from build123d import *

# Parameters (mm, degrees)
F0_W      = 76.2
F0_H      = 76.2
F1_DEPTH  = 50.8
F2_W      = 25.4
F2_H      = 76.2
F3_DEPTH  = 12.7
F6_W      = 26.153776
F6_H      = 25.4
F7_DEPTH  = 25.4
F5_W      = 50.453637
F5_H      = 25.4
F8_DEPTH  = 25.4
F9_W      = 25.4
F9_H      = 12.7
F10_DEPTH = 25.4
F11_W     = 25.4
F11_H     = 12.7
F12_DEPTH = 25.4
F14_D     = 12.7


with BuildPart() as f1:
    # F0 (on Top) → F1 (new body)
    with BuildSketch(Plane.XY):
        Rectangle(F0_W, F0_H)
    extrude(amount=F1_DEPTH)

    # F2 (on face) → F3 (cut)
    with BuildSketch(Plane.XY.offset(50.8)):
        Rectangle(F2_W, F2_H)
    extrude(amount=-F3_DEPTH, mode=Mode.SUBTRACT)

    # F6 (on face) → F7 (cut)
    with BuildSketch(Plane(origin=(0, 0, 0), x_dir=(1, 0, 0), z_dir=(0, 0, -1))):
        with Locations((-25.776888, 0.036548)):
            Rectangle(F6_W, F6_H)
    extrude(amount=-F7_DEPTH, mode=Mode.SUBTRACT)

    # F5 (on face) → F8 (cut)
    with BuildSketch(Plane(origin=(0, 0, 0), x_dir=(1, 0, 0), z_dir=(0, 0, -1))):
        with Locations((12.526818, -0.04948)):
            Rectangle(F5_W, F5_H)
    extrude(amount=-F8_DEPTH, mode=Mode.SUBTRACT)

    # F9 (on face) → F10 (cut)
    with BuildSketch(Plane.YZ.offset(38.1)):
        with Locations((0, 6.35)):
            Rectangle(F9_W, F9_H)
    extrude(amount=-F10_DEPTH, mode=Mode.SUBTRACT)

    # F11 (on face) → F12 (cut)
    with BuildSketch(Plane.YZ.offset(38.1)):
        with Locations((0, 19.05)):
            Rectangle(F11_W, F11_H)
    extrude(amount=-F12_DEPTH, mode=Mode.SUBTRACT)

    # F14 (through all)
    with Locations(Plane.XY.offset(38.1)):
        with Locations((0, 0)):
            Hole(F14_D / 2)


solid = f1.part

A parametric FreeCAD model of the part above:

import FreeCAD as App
import Part
import Sketcher
Q = App.Units.Quantity

doc = App.newDocument("Part")
params = doc.addObject("Spreadsheet::Sheet", "Params")
for row, (alias, value) in enumerate([
    ("sketch1_width", "3 in"),
    ("pad1_length", "2 in"),
    ("sketch2_width", "1 in"),
    ("sketch2_height", "3 in"),
    ("pocket1_length", "0.5 in"),
    ("sketch3_height", "1 in"),
    ("pocket2_length", "1 in"),
    ("sketch4_height", "1 in"),
    ("pocket3_length", "1 in"),
    ("sketch5_width", "1 in"),
    ("sketch5_height", "0.5 in"),
    ("pocket4_length", "1 in"),
    ("sketch6_width", "1 in"),
    ("sketch6_height", "0.5 in"),
    ("pocket5_length", "1 in"),
    ("sketch7_diameter", "0.5 in"),
    ("hole_diameter", "0.5 in"),
], start=1):
    params.set(f"A{row}", alias)
    params.set(f"B{row}", "=" + value)
    params.setAlias(f"B{row}", alias)

body = doc.addObject("PartDesign::Body", "Body")

sketch1 = body.newObject("Sketcher::SketchObject", "Sketch")
sketch1.AttachmentSupport = (doc.getObject("XY_Plane"), [""])
sketch1.MapMode = "FlatFace"
sketch1.addGeometry([
    Part.LineSegment(App.Vector(-38, 38, 0), App.Vector(-38, -38, 0)),
    Part.LineSegment(App.Vector(-38, -38, 0), App.Vector(38, -38, 0)),
    Part.LineSegment(App.Vector(38, -38, 0), App.Vector(38, 38, 0)),
    Part.LineSegment(App.Vector(38, 38, 0), App.Vector(-38, 38, 0)),
], False)
sketch1.addConstraint([
    Sketcher.Constraint("Coincident", 0, 2, 1, 1),
    Sketcher.Constraint("Coincident", 1, 2, 2, 1),
    Sketcher.Constraint("Coincident", 2, 2, 3, 1),
    Sketcher.Constraint("Coincident", 3, 2, 0, 1),
    Sketcher.Constraint("Vertical", 0),
    Sketcher.Constraint("Horizontal", 1),
    Sketcher.Constraint("Vertical", 2),
    Sketcher.Constraint("Horizontal", 3),
    Sketcher.Constraint("Symmetric", 0, 2, 2, 2, -1, 1),
    Sketcher.Constraint("Equal", 3, 0),
    Sketcher.Constraint("DistanceX", 1, 1, 1, 2, Q("3 in")),
])
sketch1.setExpression("Constraints[10]", "Params.sketch1_width")
pad1 = body.newObject("PartDesign::Pad", "Pad")
pad1.Profile = sketch1
pad1.setExpression("Length", "Params.pad1_length")

sketch2 = body.newObject("Sketcher::SketchObject", "Sketch001")
sketch2.AttachmentSupport = (doc.getObject("XY_Plane"), [""])
sketch2.MapMode = "FlatFace"
sketch2.AttachmentOffset = App.Placement(App.Vector(0, 0, 2 * 25.4), App.Rotation())
sketch2.addGeometry([
    Part.LineSegment(App.Vector(-13, 38, 0), App.Vector(-13, -38, 0)),
    Part.LineSegment(App.Vector(-13, -38, 0), App.Vector(13, -38, 0)),
    Part.LineSegment(App.Vector(13, -38, 0), App.Vector(13, 38, 0)),
    Part.LineSegment(App.Vector(13, 38, 0), App.Vector(-13, 38, 0)),
], False)
sketch2.addConstraint([
    Sketcher.Constraint("Coincident", 0, 2, 1, 1),
    Sketcher.Constraint("Coincident", 1, 2, 2, 1),
    Sketcher.Constraint("Coincident", 2, 2, 3, 1),
    Sketcher.Constraint("Coincident", 3, 2, 0, 1),
    Sketcher.Constraint("Vertical", 0),
    Sketcher.Constraint("Horizontal", 1),
    Sketcher.Constraint("Vertical", 2),
    Sketcher.Constraint("Horizontal", 3),
    Sketcher.Constraint("Symmetric", 0, 2, 2, 2, -1, 1),
    Sketcher.Constraint("DistanceX", 1, 1, 1, 2, Q("1 in")),
    Sketcher.Constraint("DistanceY", 0, 2, 0, 1, Q("3 in")),
])
sketch2.setExpression("Constraints[9]", "Params.sketch2_width")
sketch2.setExpression("Constraints[10]", "Params.sketch2_height")
pocket1 = body.newObject("PartDesign::Pocket", "Pocket")
pocket1.Profile = sketch2
pocket1.setExpression("Length", "Params.pocket1_length")

sketch3 = body.newObject("Sketcher::SketchObject", "Sketch002")
sketch3.AttachmentSupport = (doc.getObject("XY_Plane"), [""])
sketch3.MapMode = "FlatFace"
sketch3.addGeometry([
    Part.LineSegment(App.Vector(-39, -13, 0), App.Vector(-39, 13, 0)),
    Part.LineSegment(App.Vector(-39, 13, 0), App.Vector(-13, 13, 0)),
    Part.LineSegment(App.Vector(-13, 13, 0), App.Vector(-13, -13, 0)),
    Part.LineSegment(App.Vector(-13, -13, 0), App.Vector(-39, -13, 0)),
], False)
sketch3.addConstraint([
    Sketcher.Constraint("Coincident", 0, 2, 1, 1),
    Sketcher.Constraint("Coincident", 1, 2, 2, 1),
    Sketcher.Constraint("Coincident", 2, 2, 3, 1),
    Sketcher.Constraint("Coincident", 3, 2, 0, 1),
    Sketcher.Constraint("Vertical", 0),
    Sketcher.Constraint("Horizontal", 1),
    Sketcher.Constraint("Vertical", 2),
    Sketcher.Constraint("Horizontal", 3),
    Sketcher.Constraint("DistanceY", 0, 1, 0, 2, Q("1 in")),
    Sketcher.Constraint("DistanceX", 1, 2, -1, 1, Q("0.5 in")),
    Sketcher.Constraint("DistanceX", 1, 1, 1, 2, Q("26.153776 mm")),
    Sketcher.Constraint("DistanceY", 2, 2, -1, 1, Q("12.736548 mm")),
])
sketch3.setExpression("Constraints[8]", "Params.sketch3_height")
pocket2 = body.newObject("PartDesign::Pocket", "Pocket001")
pocket2.Profile = sketch3
pocket2.setExpression("Length", "Params.pocket2_length")
pocket2.Reversed = True

sketch4 = body.newObject("Sketcher::SketchObject", "Sketch003")
sketch4.AttachmentSupport = (doc.getObject("XY_Plane"), [""])
sketch4.MapMode = "FlatFace"
sketch4.addGeometry([
    Part.LineSegment(App.Vector(-13, -13, 0), App.Vector(-13, 13, 0)),
    Part.LineSegment(App.Vector(-13, 13, 0), App.Vector(38, 13, 0)),
    Part.LineSegment(App.Vector(38, 13, 0), App.Vector(38, -13, 0)),
    Part.LineSegment(App.Vector(38, -13, 0), App.Vector(-13, -13, 0)),
], False)
sketch4.addConstraint([
    Sketcher.Constraint("Coincident", 0, 2, 1, 1),
    Sketcher.Constraint("Coincident", 1, 2, 2, 1),
    Sketcher.Constraint("Coincident", 2, 2, 3, 1),
    Sketcher.Constraint("Coincident", 3, 2, 0, 1),
    Sketcher.Constraint("Vertical", 0),
    Sketcher.Constraint("Horizontal", 1),
    Sketcher.Constraint("Vertical", 2),
    Sketcher.Constraint("Horizontal", 3),
    Sketcher.Constraint("DistanceY", 0, 1, 0, 2, Q("1 in")),
    Sketcher.Constraint("DistanceX", 0, 2, -1, 1, Q("0.5 in")),
    Sketcher.Constraint("DistanceX", 1, 1, 1, 2, Q("50.453637 mm")),
    Sketcher.Constraint("DistanceY", -1, 1, 0, 2, Q("12.74948 mm")),
])
sketch4.setExpression("Constraints[8]", "Params.sketch4_height")
pocket3 = body.newObject("PartDesign::Pocket", "Pocket002")
pocket3.Profile = sketch4
pocket3.setExpression("Length", "Params.pocket3_length")
pocket3.Reversed = True

sketch5 = body.newObject("Sketcher::SketchObject", "Sketch004")
sketch5.AttachmentSupport = (doc.getObject("YZ_Plane"), [""])
sketch5.MapMode = "FlatFace"
sketch5.AttachmentOffset = App.Placement(App.Vector(0, 0, 1.5 * 25.4), App.Rotation())
sketch5.addGeometry([
    Part.LineSegment(App.Vector(-13, 13, 0), App.Vector(-13, 0, 0)),
    Part.LineSegment(App.Vector(-13, 0, 0), App.Vector(13, 0, 0)),
    Part.LineSegment(App.Vector(13, 0, 0), App.Vector(13, 13, 0)),
    Part.LineSegment(App.Vector(13, 13, 0), App.Vector(-13, 13, 0)),
], False)
sketch5.addConstraint([
    Sketcher.Constraint("Coincident", 0, 2, 1, 1),
    Sketcher.Constraint("Coincident", 1, 2, 2, 1),
    Sketcher.Constraint("Coincident", 2, 2, 3, 1),
    Sketcher.Constraint("Coincident", 3, 2, 0, 1),
    Sketcher.Constraint("Vertical", 0),
    Sketcher.Constraint("Horizontal", 1),
    Sketcher.Constraint("Vertical", 2),
    Sketcher.Constraint("Horizontal", 3),
    Sketcher.Constraint("Symmetric", 0, 2, 1, 2, -1, 1),
    Sketcher.Constraint("DistanceX", 1, 1, 1, 2, Q("1 in")),
    Sketcher.Constraint("DistanceY", 0, 2, 0, 1, Q("0.5 in")),
])
sketch5.setExpression("Constraints[9]", "Params.sketch5_width")
sketch5.setExpression("Constraints[10]", "Params.sketch5_height")
pocket4 = body.newObject("PartDesign::Pocket", "Pocket003")
pocket4.Profile = sketch5
pocket4.setExpression("Length", "Params.pocket4_length")

sketch6 = body.newObject("Sketcher::SketchObject", "Sketch005")
sketch6.AttachmentSupport = (doc.getObject("YZ_Plane"), [""])
sketch6.MapMode = "FlatFace"
sketch6.AttachmentOffset = App.Placement(App.Vector(0, 0, 1.5 * 25.4), App.Rotation())
sketch6.addGeometry([
    Part.LineSegment(App.Vector(-13, 25, 0), App.Vector(-13, 13, 0)),
    Part.LineSegment(App.Vector(-13, 13, 0), App.Vector(13, 13, 0)),
    Part.LineSegment(App.Vector(13, 13, 0), App.Vector(13, 25, 0)),
    Part.LineSegment(App.Vector(13, 25, 0), App.Vector(-13, 25, 0)),
], False)
sketch6.addConstraint([
    Sketcher.Constraint("Coincident", 0, 2, 1, 1),
    Sketcher.Constraint("Coincident", 1, 2, 2, 1),
    Sketcher.Constraint("Coincident", 2, 2, 3, 1),
    Sketcher.Constraint("Coincident", 3, 2, 0, 1),
    Sketcher.Constraint("Vertical", 0),
    Sketcher.Constraint("Horizontal", 1),
    Sketcher.Constraint("Vertical", 2),
    Sketcher.Constraint("Horizontal", 3),
    Sketcher.Constraint("DistanceX", 1, 1, 1, 2, Q("1 in")),
    Sketcher.Constraint("DistanceY", 0, 2, 0, 1, Q("0.5 in")),
    Sketcher.Constraint("DistanceY", -1, 1, 2, 2, Q("1 in")),
    Sketcher.Constraint("DistanceX", 0, 2, -1, 1, Q("0.5 in")),
])
sketch6.setExpression("Constraints[8]", "Params.sketch6_width")
sketch6.setExpression("Constraints[9]", "Params.sketch6_height")
pocket5 = body.newObject("PartDesign::Pocket", "Pocket004")
pocket5.Profile = sketch6
pocket5.setExpression("Length", "Params.pocket5_length")

sketch7 = body.newObject("Sketcher::SketchObject", "Sketch006")
sketch7.AttachmentSupport = (doc.getObject("XY_Plane"), [""])
sketch7.MapMode = "FlatFace"
sketch7.AttachmentOffset = App.Placement(App.Vector(0, 0, 1.5 * 25.4), App.Rotation())
sketch7.addGeometry(Part.Circle(App.Vector(0, 0, 0), App.Vector(0, 0, 1), 6), False)
sketch7.addConstraint([
    Sketcher.Constraint("Coincident", 0, 3, -1, 1),
    Sketcher.Constraint("Diameter", 0, Q("0.5 in")),
])
sketch7.setExpression("Constraints[1]", "Params.sketch7_diameter")
doc.recompute()
hole = body.newObject("PartDesign::Hole", "Hole")
hole.Profile = sketch7
hole.ThreadType = "None"
hole.setExpression("Diameter", "Params.hole_diameter")
hole.DepthType = "ThroughAll"

doc.recompute()
